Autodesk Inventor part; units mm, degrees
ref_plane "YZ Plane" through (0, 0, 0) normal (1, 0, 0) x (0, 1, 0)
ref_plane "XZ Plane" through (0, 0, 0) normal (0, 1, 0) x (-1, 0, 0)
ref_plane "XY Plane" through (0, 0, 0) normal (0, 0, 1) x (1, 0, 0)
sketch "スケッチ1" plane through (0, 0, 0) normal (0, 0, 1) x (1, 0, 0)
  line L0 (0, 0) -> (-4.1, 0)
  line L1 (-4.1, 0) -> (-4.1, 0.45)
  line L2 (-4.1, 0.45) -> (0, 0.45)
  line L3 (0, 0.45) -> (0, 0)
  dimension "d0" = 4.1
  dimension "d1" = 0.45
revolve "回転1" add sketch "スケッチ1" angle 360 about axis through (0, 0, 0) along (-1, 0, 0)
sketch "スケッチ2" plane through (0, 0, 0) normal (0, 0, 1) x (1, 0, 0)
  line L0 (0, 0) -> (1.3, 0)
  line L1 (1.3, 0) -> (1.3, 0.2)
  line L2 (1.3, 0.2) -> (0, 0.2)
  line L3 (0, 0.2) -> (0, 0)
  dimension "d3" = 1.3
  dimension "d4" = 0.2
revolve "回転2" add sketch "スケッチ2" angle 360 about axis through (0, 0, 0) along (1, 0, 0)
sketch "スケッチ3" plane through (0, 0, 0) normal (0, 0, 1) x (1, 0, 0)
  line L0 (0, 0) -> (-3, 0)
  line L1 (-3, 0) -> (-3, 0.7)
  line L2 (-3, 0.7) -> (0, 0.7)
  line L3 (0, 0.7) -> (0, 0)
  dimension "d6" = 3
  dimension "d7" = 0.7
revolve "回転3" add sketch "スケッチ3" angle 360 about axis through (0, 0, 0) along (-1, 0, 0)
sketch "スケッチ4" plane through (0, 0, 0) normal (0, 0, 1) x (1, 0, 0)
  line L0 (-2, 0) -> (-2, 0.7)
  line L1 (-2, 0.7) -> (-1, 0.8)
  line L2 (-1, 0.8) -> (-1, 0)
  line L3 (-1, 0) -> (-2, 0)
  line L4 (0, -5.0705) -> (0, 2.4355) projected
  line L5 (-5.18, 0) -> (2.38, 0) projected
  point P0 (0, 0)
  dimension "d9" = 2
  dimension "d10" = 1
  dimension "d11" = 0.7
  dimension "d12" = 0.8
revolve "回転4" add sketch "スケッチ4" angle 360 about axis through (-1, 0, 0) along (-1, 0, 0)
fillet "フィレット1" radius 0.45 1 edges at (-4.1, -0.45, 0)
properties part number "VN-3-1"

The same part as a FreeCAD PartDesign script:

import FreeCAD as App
import Part
import Sketcher

V = App.Vector


def edges_at(feature, points):
    """Names of the edges that pass closest to the given points."""
    edges = feature.Shape.Edges
    near = lambda p: min(range(len(edges)), key=lambda i: edges[i].distToShape(Part.Vertex(*p))[0])
    return sorted({f"Edge{near(p) + 1}" for p in points})


def add_polygon(sketch, points):
    """Adds a closed chain of lines whose ends are joined by coincident constraints."""
    first, n = sketch.GeometryCount, len(points)
    for a, b in zip(points, points[1:] + points[:1]):
        sketch.addGeometry(Part.LineSegment(App.Vector(*a, 0), App.Vector(*b, 0)), False)
    for i in range(n):
        sketch.addConstraint(Sketcher.Constraint("Coincident", first + i, 2, first + (i + 1) % n, 1))

doc = App.newDocument("Part")
body = doc.addObject("PartDesign::Body", "Body")

sketch1 = doc.addObject("Sketcher::SketchObject", "Sketch")
body.addObject(sketch1)
sketch1.AttachmentSupport = (doc.XY_Plane, [""])
sketch1.MapMode = "FlatFace"
add_polygon(sketch1, [(-4.1, 0), (0, 0), (0, 0.45), (-4.1, 0.45)])
sketch1.addConstraint(Sketcher.Constraint("Horizontal", 0))
sketch1.addConstraint(Sketcher.Constraint("Vertical", 1))
sketch1.addConstraint(Sketcher.Constraint("Horizontal", 2))
sketch1.addConstraint(Sketcher.Constraint("Vertical", 3))
sketch1.addConstraint(Sketcher.Constraint("Coincident", 0, 2, -1, 1))
sketch1.addConstraint(Sketcher.Constraint("DistanceX", 0, 1, 0, 2, 4.1))
sketch1.addConstraint(Sketcher.Constraint("DistanceY", 1, 1, 1, 2, 0.45))
revolution = doc.addObject("PartDesign::Revolution", "Revolution")
body.addObject(revolution)
revolution.Profile = sketch1
revolution.ReferenceAxis = (sketch1, ["H_Axis"])
revolution.Angle = 360

sketch2 = doc.addObject("Sketcher::SketchObject", "Sketch001")
body.addObject(sketch2)
sketch2.AttachmentSupport = (doc.XY_Plane, [""])
sketch2.MapMode = "FlatFace"
add_polygon(sketch2, [(0, 0.2), (0, 0), (1.3, 0), (1.3, 0.2)])
sketch2.addConstraint(Sketcher.Constraint("Vertical", 0))
sketch2.addConstraint(Sketcher.Constraint("Horizontal", 1))
sketch2.addConstraint(Sketcher.Constraint("Vertical", 2))
sketch2.addConstraint(Sketcher.Constraint("Horizontal", 3))
sketch2.addConstraint(Sketcher.Constraint("Coincident", 0, 2, -1, 1))
sketch2.addConstraint(Sketcher.Constraint("DistanceX", 1, 1, 1, 2, 1.3))
sketch2.addConstraint(Sketcher.Constraint("DistanceY", 0, 2, 0, 1, 0.2))
revolution2 = doc.addObject("PartDesign::Revolution", "Revolution001")
body.addObject(revolution2)
revolution2.Profile = sketch2
revolution2.ReferenceAxis = (sketch2, ["H_Axis"])
revolution2.Angle = 360

sketch3 = doc.addObject("Sketcher::SketchObject", "Sketch002")
body.addObject(sketch3)
sketch3.AttachmentSupport = (doc.XY_Plane, [""])
sketch3.MapMode = "FlatFace"
add_polygon(sketch3, [(-3, 0), (0, 0), (0, 0.7), (-3, 0.7)])
sketch3.addConstraint(Sketcher.Constraint("Horizontal", 0))
sketch3.addConstraint(Sketcher.Constraint("Vertical", 1))
sketch3.addConstraint(Sketcher.Constraint("Horizontal", 2))
sketch3.addConstraint(Sketcher.Constraint("Vertical", 3))
sketch3.addConstraint(Sketcher.Constraint("Coincident", 0, 2, -1, 1))
sketch3.addConstraint(Sketcher.Constraint("DistanceX", 0, 1, 0, 2, 3.0))
sketch3.addConstraint(Sketcher.Constraint("DistanceY", 1, 1, 1, 2, 0.7))
revolution3 = doc.addObject("PartDesign::Revolution", "Revolution002")
body.addObject(revolution3)
revolution3.Profile = sketch3
revolution3.ReferenceAxis = (sketch3, ["H_Axis"])
revolution3.Angle = 360

sketch4 = doc.addObject("Sketcher::SketchObject", "Sketch003")
body.addObject(sketch4)
sketch4.AttachmentSupport = (doc.XY_Plane, [""])
sketch4.MapMode = "FlatFace"
add_polygon(sketch4, [(-2, 0.7), (-2, 0), (-1, 0), (-1, 0.8)])
sketch4.addConstraint(Sketcher.Constraint("Vertical", 0))
sketch4.addConstraint(Sketcher.Constraint("Horizontal", 1))
sketch4.addConstraint(Sketcher.Constraint("Vertical", 2))
sketch4.addConstraint(Sketcher.Constraint("PointOnObject", 0, 2, -1))
sketch4.addConstraint(Sketcher.Constraint("DistanceX", 1, 1, 1, 2, 1.0))
sketch4.addConstraint(Sketcher.Constraint("DistanceY", 0, 2, 0, 1, 0.7))
sketch4.addConstraint(Sketcher.Constraint("DistanceY", 2, 1, 2, 2, 0.8))
sketch4.addConstraint(Sketcher.Constraint("DistanceX", 0, 2, -1, 1, 2.0))
revolution4 = doc.addObject("PartDesign::Revolution", "Revolution003")
body.addObject(revolution4)
revolution4.Profile = sketch4
revolution4.ReferenceAxis = (sketch4, ["H_Axis"])
revolution4.Angle = 360
doc.recompute()

fillet = doc.addObject("PartDesign::Fillet", "Fillet")
body.addObject(fillet)
fillet.Base = (revolution4, edges_at(revolution4, [(-4.1, -0.45, 0)]))
fillet.Radius = 0.45

doc.recompute()
